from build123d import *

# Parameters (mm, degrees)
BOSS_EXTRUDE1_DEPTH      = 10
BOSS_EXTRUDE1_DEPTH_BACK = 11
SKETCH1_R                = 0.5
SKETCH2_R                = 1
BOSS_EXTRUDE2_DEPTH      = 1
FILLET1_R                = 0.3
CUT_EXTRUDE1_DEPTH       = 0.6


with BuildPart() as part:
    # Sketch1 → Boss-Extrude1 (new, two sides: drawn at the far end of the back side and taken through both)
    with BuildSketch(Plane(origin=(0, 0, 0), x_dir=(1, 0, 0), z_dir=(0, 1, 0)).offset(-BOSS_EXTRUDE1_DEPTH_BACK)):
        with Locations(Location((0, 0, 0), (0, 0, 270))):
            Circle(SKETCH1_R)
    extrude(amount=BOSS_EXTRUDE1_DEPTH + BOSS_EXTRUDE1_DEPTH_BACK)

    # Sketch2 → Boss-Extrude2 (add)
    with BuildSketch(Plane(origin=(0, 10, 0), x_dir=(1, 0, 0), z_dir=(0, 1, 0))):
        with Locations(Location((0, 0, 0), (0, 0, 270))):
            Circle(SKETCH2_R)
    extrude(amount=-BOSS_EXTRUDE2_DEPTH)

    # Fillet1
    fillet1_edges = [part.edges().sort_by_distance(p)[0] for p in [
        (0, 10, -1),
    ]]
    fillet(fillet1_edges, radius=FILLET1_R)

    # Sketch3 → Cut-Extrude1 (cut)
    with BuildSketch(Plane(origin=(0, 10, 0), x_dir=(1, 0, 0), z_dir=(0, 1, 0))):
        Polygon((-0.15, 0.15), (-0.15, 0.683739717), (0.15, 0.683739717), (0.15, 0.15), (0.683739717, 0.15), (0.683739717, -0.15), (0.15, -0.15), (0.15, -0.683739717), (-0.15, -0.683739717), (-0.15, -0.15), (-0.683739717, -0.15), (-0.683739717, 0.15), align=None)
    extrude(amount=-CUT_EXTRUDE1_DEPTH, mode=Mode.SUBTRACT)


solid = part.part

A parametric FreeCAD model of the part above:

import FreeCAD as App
import Part
import Sketcher


def edges_at(feature, points):
    """Names of the edges that pass closest to the given points."""
    edges = feature.Shape.Edges
    near = lambda p: min(range(len(edges)), key=lambda i: edges[i].distToShape(Part.Vertex(*p))[0])
    return sorted({f"Edge{near(p) + 1}" for p in points})

doc = App.newDocument("Part")
params = doc.addObject("Spreadsheet::Sheet", "Params")
for row, (alias, value) in enumerate([
    ("sketch1_diameter", "1 mm"),
    ("pad1_length", "10 mm"),
    ("pad1_length2", "11 mm"),
    ("sketch2_diameter", "2 mm"),
    ("pad2_length", "1 mm"),
    ("fillet_radius", "0.3 mm"),
    ("sketch3_width", "0.3 mm"),
    ("pocket1_length", "0.6 mm"),
], start=1):
    params.set(f"A{row}", alias)
    params.set(f"B{row}", "=" + value)
    params.setAlias(f"B{row}", alias)

body = doc.addObject("PartDesign::Body", "Body")

# Sketch on XZ plane
sketch1 = body.newObject("Sketcher::SketchObject", "Sketch")
sketch1.AttachmentSupport = (doc.getObject("XZ_Plane"), [""])
sketch1.MapMode = "FlatFace"
sketch1.addGeometry(Part.Circle(App.Vector(0, 0, 0), App.Vector(0, 0, 1), 0.5), False)
sketch1.addConstraint([
    Sketcher.Constraint("Coincident", 0, 3, -1, 1),
    Sketcher.Constraint("Diameter", 0, 1.0),
])
sketch1.setExpression("Constraints[1]", "Params.sketch1_diameter")
pad1 = body.newObject("PartDesign::Pad", "Pad")
pad1.Profile = sketch1
pad1.Type = "TwoLengths"
pad1.setExpression("Length", "Params.pad1_length")
pad1.setExpression("Length2", "Params.pad1_length2")
pad1.Reversed = True

# Sketch on XZ plane
sketch2 = body.newObject("Sketcher::SketchObject", "Sketch001")
sketch2.AttachmentSupport = (doc.getObject("XZ_Plane"), [""])
sketch2.MapMode = "FlatFace"
sketch2.AttachmentOffset = App.Placement(App.Vector(0, 0, -10), App.Rotation())
sketch2.addGeometry(Part.Circle(App.Vector(0, 0, 0), App.Vector(0, 0, 1), 1), False)
sketch2.addConstraint([
    Sketcher.Constraint("Coincident", 0, 3, -1, 1),
    Sketcher.Constraint("Diameter", 0, 2.0),
])
sketch2.setExpression("Constraints[1]", "Params.sketch2_diameter")
pad2 = body.newObject("PartDesign::Pad", "Pad001")
pad2.Profile = sketch2
pad2.setExpression("Length", "Params.pad2_length")
doc.recompute()

fillet = body.newObject("PartDesign::Fillet", "Fillet")
fillet.Base = (pad2, edges_at(pad2, [(0, 10, -1)]))
fillet.setExpression("Radius", "Params.fillet_radius")

# Sketch on XZ plane
sketch3 = body.newObject("Sketcher::SketchObject", "Sketch002")
sketch3.AttachmentSupport = (doc.getObject("XZ_Plane"), [""])
sketch3.MapMode = "FlatFace"
sketch3.AttachmentOffset = App.Placement(App.Vector(0, 0, -10), App.Rotation())
sketch3.addGeometry([
    Part.LineSegment(App.Vector(-0.15, -0.68374, 0), App.Vector(-0.15, -0.15, 0)),  # 0
    Part.LineSegment(App.Vector(-0.15, -0.15, 0), App.Vector(-0.68374, -0.15, 0)),  # 1
    Part.LineSegment(App.Vector(-0.68374, -0.15, 0), App.Vector(-0.68374, 0.15, 0)),  # 2
    Part.LineSegment(App.Vector(-0.68374, 0.15, 0), App.Vector(-0.15, 0.15, 0)),  # 3
    Part.LineSegment(App.Vector(-0.15, 0.15, 0), App.Vector(-0.15, 0.68374, 0)),  # 4
    Part.LineSegment(App.Vector(-0.15, 0.68374, 0), App.Vector(0.15, 0.68374, 0)),  # 5
    Part.LineSegment(App.Vector(0.15, 0.68374, 0), App.Vector(0.15, 0.15, 0)),  # 6
    Part.LineSegment(App.Vector(0.15, 0.15, 0), App.Vector(0.68374, 0.15, 0)),  # 7
    Part.LineSegment(App.Vector(0.68374, 0.15, 0), App.Vector(0.68374, -0.15, 0)),  # 8
    Part.LineSegment(App.Vector(0.68374, -0.15, 0), App.Vector(0.15, -0.15, 0)),  # 9
    Part.LineSegment(App.Vector(0.15, -0.15, 0), App.Vector(0.15, -0.68374, 0)),  # 10
    Part.LineSegment(App.Vector(0.15, -0.68374, 0), App.Vector(-0.15, -0.68374, 0)),  # 11
], False)
sketch3.addConstraint([
    Sketcher.Constraint("Coincident", 0, 2, 1, 1),
    Sketcher.Constraint("Coincident", 1, 2, 2, 1),
    Sketcher.Constraint("Coincident", 2, 2, 3, 1),
    Sketcher.Constraint("Coincident", 3, 2, 4, 1),
    Sketcher.Constraint("Coincident", 4, 2, 5, 1),
    Sketcher.Constraint("Coincident", 5, 2, 6, 1),
    Sketcher.Constraint("Coincident", 6, 2, 7, 1),
    Sketcher.Constraint("Coincident", 7, 2, 8, 1),
    Sketcher.Constraint("Coincident", 8, 2, 9, 1),
    Sketcher.Constraint("Coincident", 9, 2, 10, 1),
    Sketcher.Constraint("Coincident", 10, 2, 11, 1),
    Sketcher.Constraint("Coincident", 11, 2, 0, 1),
    Sketcher.Constraint("Vertical", 0),
    Sketcher.Constraint("Horizontal", 1),
    Sketcher.Constraint("Vertical", 2),
    Sketcher.Constraint("Horizontal", 3),
    Sketcher.Constraint("Vertical", 4),
    Sketcher.Constraint("Horizontal", 5),
    Sketcher.Constraint("Vertical", 6),
    Sketcher.Constraint("Horizontal", 7),
    Sketcher.Constraint("Vertical", 8),
    Sketcher.Constraint("Horizontal", 9),
    Sketcher.Constraint("Vertical", 10),
    Sketcher.Constraint("Horizontal", 11),
    Sketcher.Constraint("Symmetric", 0, 2, 6, 2, -1, 1),
    Sketcher.Constraint("Symmetric", 2, 2, 8, 2, -1, 1),
    Sketcher.Constraint("Symmetric", 4, 2, 10, 2, -1, 1),
    Sketcher.Constraint("Symmetric", 3, 2, 6, 2, -2),
    Sketcher.Constraint("Equal", 9, 0),
    Sketcher.Constraint("Equal", 11, 2),
    Sketcher.Constraint("DistanceX", 5, 1, 5, 2, 0.3),
    Sketcher.Constraint("DistanceX", 1, 2, 1, 1, 0.53374),
])
sketch3.setExpression("Constraints[30]", "Params.sketch3_width")
pocket1 = body.newObject("PartDesign::Pocket", "Pocket")
pocket1.Profile = sketch3
pocket1.setExpression("Length", "Params.pocket1_length")
pocket1.Reversed = True

doc.recompute()
